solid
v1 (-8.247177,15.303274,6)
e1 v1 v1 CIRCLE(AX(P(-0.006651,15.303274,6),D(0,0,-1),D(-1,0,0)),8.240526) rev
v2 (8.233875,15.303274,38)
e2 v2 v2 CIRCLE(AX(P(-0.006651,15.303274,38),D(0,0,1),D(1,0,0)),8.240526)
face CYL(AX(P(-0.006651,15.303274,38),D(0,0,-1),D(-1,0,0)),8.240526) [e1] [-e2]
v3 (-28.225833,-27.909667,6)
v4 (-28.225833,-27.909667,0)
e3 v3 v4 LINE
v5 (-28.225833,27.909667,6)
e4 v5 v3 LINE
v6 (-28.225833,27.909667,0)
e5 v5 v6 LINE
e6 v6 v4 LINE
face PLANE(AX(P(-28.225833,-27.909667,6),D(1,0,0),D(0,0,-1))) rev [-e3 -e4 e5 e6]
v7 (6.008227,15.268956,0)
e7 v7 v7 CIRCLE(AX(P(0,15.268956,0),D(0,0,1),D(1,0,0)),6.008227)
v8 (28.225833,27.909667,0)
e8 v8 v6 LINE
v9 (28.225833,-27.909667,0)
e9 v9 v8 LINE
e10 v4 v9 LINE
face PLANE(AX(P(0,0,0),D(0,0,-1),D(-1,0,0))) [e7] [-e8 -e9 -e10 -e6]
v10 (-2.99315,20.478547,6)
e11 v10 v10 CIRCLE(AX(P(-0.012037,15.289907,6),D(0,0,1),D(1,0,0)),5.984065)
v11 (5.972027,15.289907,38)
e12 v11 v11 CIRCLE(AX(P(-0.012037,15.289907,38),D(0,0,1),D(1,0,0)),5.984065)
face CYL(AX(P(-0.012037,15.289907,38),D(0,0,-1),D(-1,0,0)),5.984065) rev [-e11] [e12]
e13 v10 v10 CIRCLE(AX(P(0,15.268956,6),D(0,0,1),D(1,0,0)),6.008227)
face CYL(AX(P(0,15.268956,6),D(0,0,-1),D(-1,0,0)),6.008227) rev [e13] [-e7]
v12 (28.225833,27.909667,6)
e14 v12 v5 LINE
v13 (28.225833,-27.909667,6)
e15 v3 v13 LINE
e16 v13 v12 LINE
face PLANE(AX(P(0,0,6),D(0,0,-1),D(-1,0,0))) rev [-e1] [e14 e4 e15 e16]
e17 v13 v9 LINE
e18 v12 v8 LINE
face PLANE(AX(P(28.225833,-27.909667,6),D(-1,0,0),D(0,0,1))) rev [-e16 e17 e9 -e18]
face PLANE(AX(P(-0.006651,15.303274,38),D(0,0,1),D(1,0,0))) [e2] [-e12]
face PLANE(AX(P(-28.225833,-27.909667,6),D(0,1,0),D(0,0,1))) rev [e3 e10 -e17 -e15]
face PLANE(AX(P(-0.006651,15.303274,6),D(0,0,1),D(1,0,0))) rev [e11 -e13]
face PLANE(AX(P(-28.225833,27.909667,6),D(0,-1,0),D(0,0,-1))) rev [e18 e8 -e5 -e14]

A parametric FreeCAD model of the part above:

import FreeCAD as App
import Part
import Sketcher
from FreeCAD import Vector

doc = App.newDocument("Part")
body = doc.addObject("PartDesign::Body", "Body")

sketch1 = body.newObject("Sketcher::SketchObject", "Sketch")
sketch1.AttachmentSupport = (doc.getObject("XY_Plane"), [""])
sketch1.MapMode = "FlatFace"
sketch1.addGeometry([
    Part.LineSegment(Vector(-28, 28, 0), Vector(-28, -28, 0)),
    Part.LineSegment(Vector(-28, -28, 0), Vector(28, -28, 0)),
    Part.LineSegment(Vector(28, -28, 0), Vector(28, 28, 0)),
    Part.LineSegment(Vector(28, 28, 0), Vector(-28, 28, 0)),
    Part.Circle(Vector(0, 15, 0), Vector(0, 0, 1), 6),
], False)
sketch1.addConstraint([
    Sketcher.Constraint("Coincident", 0, 2, 1, 1),
    Sketcher.Constraint("Coincident", 1, 2, 2, 1),
    Sketcher.Constraint("Coincident", 2, 2, 3, 1),
    Sketcher.Constraint("Coincident", 3, 2, 0, 1),
    Sketcher.Constraint("Vertical", 0),
    Sketcher.Constraint("Horizontal", 1),
    Sketcher.Constraint("Vertical", 2),
    Sketcher.Constraint("Horizontal", 3),
    Sketcher.Constraint("Symmetric", 0, 2, 2, 2, -1, 1),
    Sketcher.Constraint("PointOnObject", 4, 3, -2),
    Sketcher.Constraint("Diameter", 4, 12.016455),
    Sketcher.Constraint("DistanceX", 1, 1, 1, 2, 56.451666),
    Sketcher.Constraint("DistanceY", 0, 2, 0, 1, 55.819333),
    Sketcher.Constraint("DistanceY", 4, 3, 2, 2, 12.640711),
])
pad1 = body.newObject("PartDesign::Pad", "Pad")
pad1.Profile = sketch1
pad1.Length = 6
body2 = doc.addObject("PartDesign::Body", "Body001")

sketch2 = body2.newObject("Sketcher::SketchObject", "Sketch001")
sketch2.AttachmentSupport = (doc.getObject("XY_Plane001"), [""])
sketch2.MapMode = "FlatFace"
sketch2.AttachmentOffset = App.Placement(Vector(0, 0, 6), App.Rotation())
sketch2.addGeometry(Part.Circle(Vector(0, 15, 0), Vector(0, 0, 1), 6), False)
sketch2.addConstraint([
    Sketcher.Constraint("Diameter", 0, 11.968129),
    Sketcher.Constraint("DistanceX", 0, 3, -1, 1, 0.012037),
    Sketcher.Constraint("DistanceY", -1, 1, 0, 3, 15.289907),
])
pad2 = body2.newObject("PartDesign::Pad", "Pad001")
pad2.Profile = sketch2
pad2.Length = 32
body.AllowCompound = True
doc.recompute()

boolean = body.newObject("PartDesign::Boolean", "Boolean")
boolean.Type = "Fuse"
boolean.addObjects([body2])

sketch3 = body.newObject("Sketcher::SketchObject", "Sketch002")
sketch3.AttachmentSupport = (doc.getObject("XY_Plane"), [""])
sketch3.MapMode = "FlatFace"
sketch3.AttachmentOffset = App.Placement(Vector(0, 0, 6), App.Rotation())
sketch3.addGeometry(Part.Circle(Vector(0, 15, 0), Vector(0, 0, 1), 8), False)
sketch3.addConstraint([
    Sketcher.Constraint("Diameter", 0, 16.481052),
    Sketcher.Constraint("DistanceX", 0, 3, -1, 1, 0.006651),
    Sketcher.Constraint("DistanceY", -1, 1, 0, 3, 15.303274),
])
pad3 = body.newObject("PartDesign::Pad", "Pad002")
pad3.Profile = sketch3
pad3.Length = 32

sketch4 = body.newObject("Sketcher::SketchObject", "Sketch003")
sketch4.AttachmentSupport = (doc.getObject("XY_Plane"), [""])
sketch4.MapMode = "FlatFace"
sketch4.AttachmentOffset = App.Placement(Vector(0, 0, 6), App.Rotation())
sketch4.addGeometry(Part.Circle(Vector(0, 15, 0), Vector(0, 0, 1), 6), False)
sketch4.addConstraint([
    Sketcher.Constraint("Diameter", 0, 11.968129),
    Sketcher.Constraint("DistanceX", 0, 3, -1, 1, 0.012037),
    Sketcher.Constraint("DistanceY", -1, 1, 0, 3, 15.289907),
])
pocket1 = body.newObject("PartDesign::Pocket", "Pocket")
pocket1.Profile = sketch4
pocket1.Type = "ThroughAll"
pocket1.Reversed = True

doc.recompute()
